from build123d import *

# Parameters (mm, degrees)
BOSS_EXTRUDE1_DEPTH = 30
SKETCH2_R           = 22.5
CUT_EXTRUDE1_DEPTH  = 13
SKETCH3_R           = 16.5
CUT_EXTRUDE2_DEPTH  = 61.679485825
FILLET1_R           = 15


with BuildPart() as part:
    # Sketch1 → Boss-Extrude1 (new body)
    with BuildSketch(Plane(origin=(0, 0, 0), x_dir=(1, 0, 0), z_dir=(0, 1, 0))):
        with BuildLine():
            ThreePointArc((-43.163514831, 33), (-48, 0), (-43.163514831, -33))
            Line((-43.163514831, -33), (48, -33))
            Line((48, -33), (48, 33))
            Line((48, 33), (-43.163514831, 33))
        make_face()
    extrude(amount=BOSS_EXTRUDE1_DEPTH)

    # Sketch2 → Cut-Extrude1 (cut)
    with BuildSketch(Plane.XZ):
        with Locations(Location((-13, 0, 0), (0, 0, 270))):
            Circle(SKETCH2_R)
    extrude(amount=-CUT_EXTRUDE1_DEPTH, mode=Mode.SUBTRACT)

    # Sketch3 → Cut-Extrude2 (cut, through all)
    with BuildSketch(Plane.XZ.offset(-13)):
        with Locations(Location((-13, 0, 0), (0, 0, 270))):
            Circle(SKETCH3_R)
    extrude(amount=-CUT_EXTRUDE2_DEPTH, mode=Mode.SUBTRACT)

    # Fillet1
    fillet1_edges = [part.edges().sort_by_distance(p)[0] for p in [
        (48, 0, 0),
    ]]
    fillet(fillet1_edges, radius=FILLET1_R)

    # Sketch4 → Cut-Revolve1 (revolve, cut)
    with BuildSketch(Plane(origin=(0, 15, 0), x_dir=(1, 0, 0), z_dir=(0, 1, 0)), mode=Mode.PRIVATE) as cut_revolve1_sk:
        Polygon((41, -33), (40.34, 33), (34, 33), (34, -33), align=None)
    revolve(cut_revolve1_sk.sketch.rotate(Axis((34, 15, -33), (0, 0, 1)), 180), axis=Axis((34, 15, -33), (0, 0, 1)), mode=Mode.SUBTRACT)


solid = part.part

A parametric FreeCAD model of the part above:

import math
import FreeCAD as App
import Part
import Sketcher
from FreeCAD import Vector
Q = App.Units.Quantity


def edges_at(feature, points):
    """Names of the edges that pass closest to the given points."""
    edges = feature.Shape.Edges
    near = lambda p: min(range(len(edges)), key=lambda i: edges[i].distToShape(Part.Vertex(*p))[0])
    return sorted({f"Edge{near(p) + 1}" for p in points})

doc = App.newDocument("Part")
params = doc.addObject("Spreadsheet::Sheet", "Params")
for row, (alias, value) in enumerate([
    ("sketch1_radius", "115 mm"),
    ("sketch1_height", "66 mm"),
    ("pad1_length", "30 mm"),
    ("sketch2_diameter", "45 mm"),
    ("pocket1_length", "13 mm"),
    ("sketch3_diameter", "33 mm"),
    ("fillet_radius", "15 mm"),
    ("sketch4_width", "7 mm"),
    ("sketch4_height", "66 mm"),
    ("sketch4_width2", "6.34 mm"),
    ("groove_angle", "360 deg"),
], start=1):
    params.set(f"A{row}", alias)
    params.set(f"B{row}", "=" + value)
    params.setAlias(f"B{row}", alias)

body = doc.addObject("PartDesign::Body", "Body")

sketch1 = body.newObject("Sketcher::SketchObject", "Sketch")
sketch1.AttachmentSupport = (doc.getObject("XZ_Plane"), [""])
sketch1.MapMode = "FlatFace"
sketch1.addGeometry([
    Part.ArcOfCircle(Part.Circle(Vector(67, 0, 0), Vector(0, 0, 1), 115), math.radians(163), math.radians(197)),
    Part.LineSegment(Vector(-43, 33, 0), Vector(48, 33, 0)),
    Part.LineSegment(Vector(48, 33, 0), Vector(48, -33, 0)),
    Part.LineSegment(Vector(48, -33, 0), Vector(-43, -33, 0)),
], False)
sketch1.addConstraint([
    Sketcher.Constraint("Coincident", 0, 1, 1, 1),
    Sketcher.Constraint("Coincident", 1, 2, 2, 1),
    Sketcher.Constraint("Coincident", 2, 2, 3, 1),
    Sketcher.Constraint("Coincident", 3, 2, 0, 2),
    Sketcher.Constraint("Horizontal", 1),
    Sketcher.Constraint("Vertical", 2),
    Sketcher.Constraint("Horizontal", 3),
    Sketcher.Constraint("Symmetric", 0, 1, 3, 2, -1),
    Sketcher.Constraint("Radius", 0, Q("115 mm")),
    Sketcher.Constraint("DistanceY", 2, 2, 2, 1, Q("66 mm")),
    Sketcher.Constraint("DistanceX", -1, 1, 0, 3, Q("67 mm")),
    Sketcher.Constraint("DistanceX", -1, 1, 1, 2, Q("48 mm")),
])
sketch1.setExpression("Constraints[8]", "Params.sketch1_radius")
sketch1.setExpression("Constraints[9]", "Params.sketch1_height")
pad1 = body.newObject("PartDesign::Pad", "Pad")
pad1.Profile = sketch1
pad1.setExpression("Length", "Params.pad1_length")
pad1.Reversed = True

sketch2 = body.newObject("Sketcher::SketchObject", "Sketch001")
sketch2.AttachmentSupport = (doc.getObject("XZ_Plane"), [""])
sketch2.MapMode = "FlatFace"
sketch2.addGeometry(Part.Circle(Vector(-13, 0, 0), Vector(0, 0, 1), 22), False)
sketch2.addConstraint([
    Sketcher.Constraint("PointOnObject", 0, 3, -1),
    Sketcher.Constraint("Diameter", 0, Q("45 mm")),
    Sketcher.Constraint("DistanceX", 0, 3, -1, 1, Q("13 mm")),
])
sketch2.setExpression("Constraints[1]", "Params.sketch2_diameter")
pocket1 = body.newObject("PartDesign::Pocket", "Pocket")
pocket1.Profile = sketch2
pocket1.setExpression("Length", "Params.pocket1_length")

sketch3 = body.newObject("Sketcher::SketchObject", "Sketch002")
sketch3.AttachmentSupport = (doc.getObject("XZ_Plane"), [""])
sketch3.MapMode = "FlatFace"
sketch3.AttachmentOffset = App.Placement(Vector(0, 0, -13), App.Rotation())
sketch3.addGeometry(Part.Circle(Vector(-13, 0, 0), Vector(0, 0, 1), 16), False)
sketch3.addConstraint([
    Sketcher.Constraint("PointOnObject", 0, 3, -1),
    Sketcher.Constraint("Diameter", 0, Q("33 mm")),
    Sketcher.Constraint("DistanceX", 0, 3, -1, 1, Q("13 mm")),
])
sketch3.setExpression("Constraints[1]", "Params.sketch3_diameter")
pocket2 = body.newObject("PartDesign::Pocket", "Pocket001")
pocket2.Profile = sketch3
pocket2.Type = "ThroughAll"
doc.recompute()

fillet = body.newObject("PartDesign::Fillet", "Fillet")
fillet.Base = (pocket2, edges_at(pocket2, [(48, 0, 0)]))
fillet.setExpression("Radius", "Params.fillet_radius")

sketch4 = body.newObject("Sketcher::SketchObject", "Sketch003")
sketch4.AttachmentSupport = (doc.getObject("XZ_Plane"), [""])
sketch4.MapMode = "FlatFace"
sketch4.AttachmentOffset = App.Placement(Vector(0, 0, -15), App.Rotation())
sketch4.addGeometry([
    Part.LineSegment(Vector(41, 33, 0), Vector(40, -33, 0)),
    Part.LineSegment(Vector(40, -33, 0), Vector(34, -33, 0)),
    Part.LineSegment(Vector(34, -33, 0), Vector(34, 33, 0)),
    Part.LineSegment(Vector(34, 33, 0), Vector(41, 33, 0)),
], False)
sketch4.addGeometry(Part.LineSegment(Vector(34, -33, 0), Vector(34, 33, 0)), True)
sketch4.addConstraint([
    Sketcher.Constraint("Coincident", 0, 2, 1, 1),
    Sketcher.Constraint("Coincident", 1, 2, 2, 1),
    Sketcher.Constraint("Coincident", 2, 2, 3, 1),
    Sketcher.Constraint("Coincident", 3, 2, 0, 1),
    Sketcher.Constraint("Horizontal", 1),
    Sketcher.Constraint("Vertical", 2),
    Sketcher.Constraint("Horizontal", 3),
    Sketcher.Constraint("Vertical", 4),
    Sketcher.Constraint("Coincident", 4, 1, 1, 2),
    Sketcher.Constraint("Horizontal", 3, 2, 4, 2),
    Sketcher.Constraint("DistanceX", 3, 1, 3, 2, Q("7 mm")),
    Sketcher.Constraint("DistanceY", 2, 1, 2, 2, Q("66 mm")),
    Sketcher.Constraint("DistanceY", 0, 2, -1, 1, Q("33 mm")),
    Sketcher.Constraint("DistanceX", -1, 1, 1, 2, Q("34 mm")),
    Sketcher.Constraint("DistanceX", 1, 2, 1, 1, Q("6.34 mm")),
])
sketch4.setExpression("Constraints[10]", "Params.sketch4_width")
sketch4.setExpression("Constraints[11]", "Params.sketch4_height")
sketch4.setExpression("Constraints[14]", "Params.sketch4_width2")
groove = body.newObject("PartDesign::Groove", "Groove")
groove.Profile = sketch4
groove.ReferenceAxis = (sketch4, ["Axis0"])
groove.setExpression("Angle", "Params.groove_angle")

doc.recompute()
